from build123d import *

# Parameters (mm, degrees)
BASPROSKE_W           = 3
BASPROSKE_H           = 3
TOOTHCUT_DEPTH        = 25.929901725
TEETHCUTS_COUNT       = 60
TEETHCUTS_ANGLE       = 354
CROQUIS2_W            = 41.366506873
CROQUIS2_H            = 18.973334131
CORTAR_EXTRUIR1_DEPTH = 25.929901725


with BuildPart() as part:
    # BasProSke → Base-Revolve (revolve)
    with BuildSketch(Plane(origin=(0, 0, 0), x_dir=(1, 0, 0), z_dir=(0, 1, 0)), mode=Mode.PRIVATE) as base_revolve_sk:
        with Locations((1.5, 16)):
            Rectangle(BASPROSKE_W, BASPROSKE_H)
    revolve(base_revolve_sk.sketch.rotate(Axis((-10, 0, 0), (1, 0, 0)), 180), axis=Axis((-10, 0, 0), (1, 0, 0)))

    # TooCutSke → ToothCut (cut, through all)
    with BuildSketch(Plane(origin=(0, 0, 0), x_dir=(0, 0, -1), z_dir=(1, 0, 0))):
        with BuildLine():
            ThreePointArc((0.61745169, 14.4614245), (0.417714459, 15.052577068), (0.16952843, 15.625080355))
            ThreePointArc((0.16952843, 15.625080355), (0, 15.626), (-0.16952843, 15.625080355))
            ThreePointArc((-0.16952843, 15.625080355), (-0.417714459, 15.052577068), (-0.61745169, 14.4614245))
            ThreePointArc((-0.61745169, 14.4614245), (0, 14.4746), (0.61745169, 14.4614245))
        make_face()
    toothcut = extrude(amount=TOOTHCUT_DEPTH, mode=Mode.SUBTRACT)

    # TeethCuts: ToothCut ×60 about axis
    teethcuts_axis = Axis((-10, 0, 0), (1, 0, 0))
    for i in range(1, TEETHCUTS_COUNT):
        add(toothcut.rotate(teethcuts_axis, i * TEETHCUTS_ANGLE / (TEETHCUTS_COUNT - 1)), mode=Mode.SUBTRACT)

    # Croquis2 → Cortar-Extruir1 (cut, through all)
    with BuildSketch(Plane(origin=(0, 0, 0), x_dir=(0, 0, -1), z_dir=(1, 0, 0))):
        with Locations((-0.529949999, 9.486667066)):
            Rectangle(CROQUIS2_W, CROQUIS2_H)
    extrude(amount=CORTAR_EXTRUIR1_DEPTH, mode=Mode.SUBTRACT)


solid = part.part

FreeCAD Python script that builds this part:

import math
import FreeCAD as App
import Part
import Sketcher
from FreeCAD import Vector


def add_polygon(sketch, points):
    """Adds a closed chain of lines whose ends are joined by coincident constraints."""
    first, n = sketch.GeometryCount, len(points)
    for a, b in zip(points, points[1:] + points[:1]):
        sketch.addGeometry(Part.LineSegment(App.Vector(*a, 0), App.Vector(*b, 0)), False)
    for i in range(n):
        sketch.addConstraint(Sketcher.Constraint("Coincident", first + i, 2, first + (i + 1) % n, 1))

doc = App.newDocument("Part")
body = doc.addObject("PartDesign::Body", "Body")

sketch1 = body.newObject("Sketcher::SketchObject", "Sketch")
sketch1.AttachmentSupport = (doc.getObject("XZ_Plane"), [""])
sketch1.MapMode = "FlatFace"
add_polygon(sketch1, [(0, -17.5), (0, -14.5), (3, -14.5), (3, -17.5)])
sketch1.addConstraint(Sketcher.Constraint("Vertical", 0))
sketch1.addConstraint(Sketcher.Constraint("Horizontal", 1))
sketch1.addConstraint(Sketcher.Constraint("Vertical", 2))
sketch1.addConstraint(Sketcher.Constraint("Horizontal", 3))
sketch1.addConstraint(Sketcher.Constraint("PointOnObject", 0, 2, -2))
sketch1.addConstraint(Sketcher.Constraint("Equal", 3, 0))
sketch1.addConstraint(Sketcher.Constraint("DistanceX", 1, 1, 1, 2, 3.0))
sketch1.addConstraint(Sketcher.Constraint("DistanceY", 0, 2, -1, 1, 14.5))
revolution = body.newObject("PartDesign::Revolution", "Revolution")
revolution.Profile = sketch1
revolution.ReferenceAxis = (sketch1, ["H_Axis"])
revolution.Angle = 360

sketch2 = body.newObject("Sketcher::SketchObject", "Sketch001")
sketch2.AttachmentSupport = (doc.getObject("YZ_Plane"), [""])
sketch2.MapMode = "FlatFace"
sketch2.addGeometry(Part.ArcOfCircle(Part.Circle(Vector(12.36, 6.58, 0), Vector(0, 0, 1), 7.5), math.radians(-73.72), math.radians(-64.18)), False)
sketch2.addGeometry(Part.ArcOfCircle(Part.Circle(Vector(0, 0, 0), Vector(0, 0, 1), 15.63), math.radians(-0.62), math.radians(0.62)), False)
sketch2.addGeometry(Part.ArcOfCircle(Part.Circle(Vector(12.36, -6.58, 0), Vector(0, 0, 1), 7.5), math.radians(64.18), math.radians(73.72)), False)
sketch2.addGeometry(Part.ArcOfCircle(Part.Circle(Vector(0, 0, 0), Vector(0, 0, 1), 14.47), math.radians(-2.44), math.radians(2.44)), False)
sketch2.addConstraint(Sketcher.Constraint("Coincident", 0, 2, 1, 1))
sketch2.addConstraint(Sketcher.Constraint("Coincident", 1, 2, 2, 1))
sketch2.addConstraint(Sketcher.Constraint("Coincident", 2, 2, 3, 2))
sketch2.addConstraint(Sketcher.Constraint("Coincident", 3, 1, 0, 1))
sketch2.addConstraint(Sketcher.Constraint("Coincident", 1, 3, -1, 1))
sketch2.addConstraint(Sketcher.Constraint("Coincident", 3, 3, -1, 1))
sketch2.addConstraint(Sketcher.Constraint("Equal", 0, 2))
sketch2.addConstraint(Sketcher.Constraint("Symmetric", 0, 3, 2, 3, -1))
sketch2.addConstraint(Sketcher.Constraint("Radius", 0, 7.5))
sketch2.addConstraint(Sketcher.Constraint("Radius", 3, 14.4746))
sketch2.addConstraint(Sketcher.Constraint("Radius", 1, 15.625994))
sketch2.addConstraint(Sketcher.Constraint("DistanceX", -1, 1, 0, 3, 12.35833))
sketch2.addConstraint(Sketcher.Constraint("DistanceY", 0, 2, -1, 1, 0.169528))
pocket1 = body.newObject("PartDesign::Pocket", "Pocket")
pocket1.Profile = sketch2
pocket1.Type = "ThroughAll"
pocket1.Reversed = True
doc.recompute()

polarpattern = body.newObject("PartDesign::PolarPattern", "PolarPattern")
polarpattern.Originals = [pocket1]
polarpattern.Axis = (doc.getObject("X_Axis"), [""])
polarpattern.Angle = 360
polarpattern.Occurrences = 60
body.Tip = polarpattern

sketch3 = body.newObject("Sketcher::SketchObject", "Sketch002")
sketch3.AttachmentSupport = (doc.getObject("YZ_Plane"), [""])
sketch3.MapMode = "FlatFace"
add_polygon(sketch3, [(19, 21), (0, 21), (0, -20), (19, -20)])
sketch3.addConstraint(Sketcher.Constraint("Horizontal", 0))
sketch3.addConstraint(Sketcher.Constraint("Vertical", 1))
sketch3.addConstraint(Sketcher.Constraint("Horizontal", 2))
sketch3.addConstraint(Sketcher.Constraint("Vertical", 3))
sketch3.addConstraint(Sketcher.Constraint("PointOnObject", 0, 2, -2))
sketch3.addConstraint(Sketcher.Constraint("DistanceX", 0, 2, 0, 1, 18.973334))
sketch3.addConstraint(Sketcher.Constraint("DistanceY", 1, 2, 1, 1, 41.366507))
sketch3.addConstraint(Sketcher.Constraint("DistanceY", -1, 1, 0, 2, 21.213203))
pocket2 = body.newObject("PartDesign::Pocket", "Pocket001")
pocket2.Profile = sketch3
pocket2.Type = "ThroughAll"
pocket2.Reversed = True

doc.recompute()
